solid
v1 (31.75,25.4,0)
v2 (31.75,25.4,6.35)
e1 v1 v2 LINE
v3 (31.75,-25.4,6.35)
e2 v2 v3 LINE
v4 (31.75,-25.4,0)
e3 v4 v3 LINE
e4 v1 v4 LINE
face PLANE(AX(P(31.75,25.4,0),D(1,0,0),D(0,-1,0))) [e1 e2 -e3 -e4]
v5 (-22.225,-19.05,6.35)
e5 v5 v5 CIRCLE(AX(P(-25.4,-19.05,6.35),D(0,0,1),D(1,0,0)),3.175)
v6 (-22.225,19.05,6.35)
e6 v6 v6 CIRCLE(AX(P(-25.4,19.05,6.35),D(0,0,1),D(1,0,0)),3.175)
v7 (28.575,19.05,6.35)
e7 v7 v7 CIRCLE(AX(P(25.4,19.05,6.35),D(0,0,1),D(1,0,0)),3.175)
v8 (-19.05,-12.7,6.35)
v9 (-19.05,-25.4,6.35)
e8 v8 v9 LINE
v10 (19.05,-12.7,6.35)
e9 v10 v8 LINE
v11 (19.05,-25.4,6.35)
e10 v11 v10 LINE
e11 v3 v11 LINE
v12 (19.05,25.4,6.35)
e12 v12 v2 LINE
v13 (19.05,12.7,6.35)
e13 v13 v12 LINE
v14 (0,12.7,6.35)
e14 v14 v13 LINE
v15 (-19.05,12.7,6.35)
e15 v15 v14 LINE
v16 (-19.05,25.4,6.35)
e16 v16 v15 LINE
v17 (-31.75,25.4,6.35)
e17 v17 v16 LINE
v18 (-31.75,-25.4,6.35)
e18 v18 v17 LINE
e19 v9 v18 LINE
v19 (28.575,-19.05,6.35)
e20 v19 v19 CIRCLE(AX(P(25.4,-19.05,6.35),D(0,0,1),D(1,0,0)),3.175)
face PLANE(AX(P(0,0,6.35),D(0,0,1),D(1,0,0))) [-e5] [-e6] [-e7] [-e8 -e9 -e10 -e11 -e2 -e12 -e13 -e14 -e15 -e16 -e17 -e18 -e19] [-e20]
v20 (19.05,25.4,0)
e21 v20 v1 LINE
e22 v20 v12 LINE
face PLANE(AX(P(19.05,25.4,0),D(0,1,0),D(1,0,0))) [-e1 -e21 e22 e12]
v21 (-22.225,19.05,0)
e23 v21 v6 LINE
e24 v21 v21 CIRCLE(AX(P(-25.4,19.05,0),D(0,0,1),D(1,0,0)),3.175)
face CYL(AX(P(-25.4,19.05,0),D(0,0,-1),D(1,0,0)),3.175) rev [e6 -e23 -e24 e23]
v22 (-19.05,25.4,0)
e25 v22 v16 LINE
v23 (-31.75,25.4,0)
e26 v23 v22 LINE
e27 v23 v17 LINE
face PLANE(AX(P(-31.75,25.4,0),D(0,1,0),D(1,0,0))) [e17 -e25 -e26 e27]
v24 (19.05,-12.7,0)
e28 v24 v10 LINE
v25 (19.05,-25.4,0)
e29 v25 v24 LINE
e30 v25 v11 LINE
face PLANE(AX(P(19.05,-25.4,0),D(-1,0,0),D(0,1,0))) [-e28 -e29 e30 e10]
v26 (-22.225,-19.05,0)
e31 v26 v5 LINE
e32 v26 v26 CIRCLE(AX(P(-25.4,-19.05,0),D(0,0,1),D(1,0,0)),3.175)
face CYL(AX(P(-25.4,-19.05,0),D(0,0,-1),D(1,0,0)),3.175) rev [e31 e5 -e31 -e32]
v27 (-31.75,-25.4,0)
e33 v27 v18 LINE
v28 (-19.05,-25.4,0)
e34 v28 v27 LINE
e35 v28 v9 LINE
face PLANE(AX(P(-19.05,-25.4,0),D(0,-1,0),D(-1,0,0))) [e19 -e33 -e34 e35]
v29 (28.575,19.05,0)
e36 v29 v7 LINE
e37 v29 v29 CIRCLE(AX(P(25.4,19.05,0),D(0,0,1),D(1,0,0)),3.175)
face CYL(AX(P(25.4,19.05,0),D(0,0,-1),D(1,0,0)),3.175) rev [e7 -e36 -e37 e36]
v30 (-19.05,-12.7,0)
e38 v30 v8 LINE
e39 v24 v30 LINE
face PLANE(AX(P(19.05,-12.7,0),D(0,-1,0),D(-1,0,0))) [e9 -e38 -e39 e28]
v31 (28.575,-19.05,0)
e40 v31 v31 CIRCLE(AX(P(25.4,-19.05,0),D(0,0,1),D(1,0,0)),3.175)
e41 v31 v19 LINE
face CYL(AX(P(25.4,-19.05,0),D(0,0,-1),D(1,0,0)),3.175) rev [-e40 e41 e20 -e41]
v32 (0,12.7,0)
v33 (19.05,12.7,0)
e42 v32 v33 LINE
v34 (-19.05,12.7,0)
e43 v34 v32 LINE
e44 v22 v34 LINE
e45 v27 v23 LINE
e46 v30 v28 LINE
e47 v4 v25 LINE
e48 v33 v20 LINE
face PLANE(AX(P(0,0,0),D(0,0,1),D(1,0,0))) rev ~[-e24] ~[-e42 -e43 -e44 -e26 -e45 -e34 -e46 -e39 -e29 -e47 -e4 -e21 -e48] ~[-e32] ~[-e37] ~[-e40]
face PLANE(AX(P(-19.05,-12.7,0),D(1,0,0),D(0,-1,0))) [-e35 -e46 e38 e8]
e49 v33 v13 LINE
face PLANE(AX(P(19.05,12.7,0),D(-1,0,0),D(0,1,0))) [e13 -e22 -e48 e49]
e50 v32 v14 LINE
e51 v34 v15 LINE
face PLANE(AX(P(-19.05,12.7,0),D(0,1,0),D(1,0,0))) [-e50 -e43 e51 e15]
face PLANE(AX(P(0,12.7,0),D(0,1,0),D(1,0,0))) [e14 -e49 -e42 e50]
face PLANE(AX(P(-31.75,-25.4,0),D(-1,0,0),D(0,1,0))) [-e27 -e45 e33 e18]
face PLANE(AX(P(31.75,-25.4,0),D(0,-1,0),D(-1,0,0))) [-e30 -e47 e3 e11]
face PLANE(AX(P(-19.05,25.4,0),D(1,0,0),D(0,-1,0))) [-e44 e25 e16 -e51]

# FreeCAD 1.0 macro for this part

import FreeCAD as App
import Part
import Sketcher
Q = App.Units.Quantity


def add_polygon(sketch, points):
    """Adds a closed chain of lines whose ends are joined by coincident constraints."""
    first, n = sketch.GeometryCount, len(points)
    for a, b in zip(points, points[1:] + points[:1]):
        sketch.addGeometry(Part.LineSegment(App.Vector(*a, 0), App.Vector(*b, 0)), False)
    for i in range(n):
        sketch.addConstraint(Sketcher.Constraint("Coincident", first + i, 2, first + (i + 1) % n, 1))

doc = App.newDocument("Part")
body = doc.addObject("PartDesign::Body", "Body")

sketch1 = body.newObject("Sketcher::SketchObject", "Sketch")
sketch1.AttachmentSupport = (doc.getObject("XY_Plane"), [""])
sketch1.MapMode = "FlatFace"
add_polygon(sketch1, [(-31.8, 25.4), (-31.8, -25.4), (-19.1, -25.4), (-19.1, -12.7), (19.1, -12.7), (19.1, -25.4), (31.8, -25.4), (31.8, 25.4), (19.1, 25.4), (19.1, 12.7), (-19.1, 12.7), (-19.1, 25.4)])
sketch1.addGeometry(Part.Circle(App.Vector(-25.4, -19.1, 0), App.Vector(0, 0, 1), 3.2), False)
sketch1.addGeometry(Part.Circle(App.Vector(25.4, -19.1, 0), App.Vector(0, 0, 1), 3.2), False)
sketch1.addGeometry(Part.Circle(App.Vector(-25.4, 19.1, 0), App.Vector(0, 0, 1), 3.2), False)
sketch1.addGeometry(Part.Circle(App.Vector(25.4, 19.1, 0), App.Vector(0, 0, 1), 3.2), False)
sketch1.addConstraint([
    Sketcher.Constraint("Vertical", 0),
    Sketcher.Constraint("Horizontal", 1),
    Sketcher.Constraint("Vertical", 2),
    Sketcher.Constraint("Horizontal", 3),
    Sketcher.Constraint("Vertical", 4),
    Sketcher.Constraint("Horizontal", 5),
    Sketcher.Constraint("Vertical", 6),
    Sketcher.Constraint("Horizontal", 7),
    Sketcher.Constraint("Vertical", 8),
    Sketcher.Constraint("Horizontal", 9),
    Sketcher.Constraint("Vertical", 10),
    Sketcher.Constraint("Horizontal", 11),
    Sketcher.Constraint("Equal", 12, 13),
    Sketcher.Constraint("Equal", 13, 14),
    Sketcher.Constraint("Equal", 14, 15),
    Sketcher.Constraint("Symmetric", 13, 3, 14, 3, -1, 1),
    Sketcher.Constraint("Symmetric", 12, 3, 15, 3, -1, 1),
    Sketcher.Constraint("Symmetric", 0, 2, 6, 2, -1, 1),
    Sketcher.Constraint("Symmetric", 2, 2, 8, 2, -1, 1),
    Sketcher.Constraint("Symmetric", 4, 2, 10, 2, -1, 1),
    Sketcher.Constraint("Symmetric", 12, 3, 13, 3, -2),
    Sketcher.Constraint("Symmetric", 1, 2, 4, 2, -2),
    Sketcher.Constraint("Equal", 11, 2),
    Sketcher.Constraint("Diameter", 12, Q("0.25 in")),
    Sketcher.Constraint("DistanceY", 0, 2, 0, 1, Q("2 in")),
    Sketcher.Constraint("DistanceX", 1, 1, 1, 2, Q("0.5 in")),
    Sketcher.Constraint("DistanceX", 3, 1, 3, 2, Q("1.5 in")),
    Sketcher.Constraint("DistanceX", 12, 3, 13, 3, Q("2 in")),
    Sketcher.Constraint("DistanceY", 12, 3, 14, 3, Q("1.5 in")),
])
pad1 = body.newObject("PartDesign::Pad", "Pad")
pad1.Profile = sketch1
pad1.Length = Q("0.25 in")

doc.recompute()
